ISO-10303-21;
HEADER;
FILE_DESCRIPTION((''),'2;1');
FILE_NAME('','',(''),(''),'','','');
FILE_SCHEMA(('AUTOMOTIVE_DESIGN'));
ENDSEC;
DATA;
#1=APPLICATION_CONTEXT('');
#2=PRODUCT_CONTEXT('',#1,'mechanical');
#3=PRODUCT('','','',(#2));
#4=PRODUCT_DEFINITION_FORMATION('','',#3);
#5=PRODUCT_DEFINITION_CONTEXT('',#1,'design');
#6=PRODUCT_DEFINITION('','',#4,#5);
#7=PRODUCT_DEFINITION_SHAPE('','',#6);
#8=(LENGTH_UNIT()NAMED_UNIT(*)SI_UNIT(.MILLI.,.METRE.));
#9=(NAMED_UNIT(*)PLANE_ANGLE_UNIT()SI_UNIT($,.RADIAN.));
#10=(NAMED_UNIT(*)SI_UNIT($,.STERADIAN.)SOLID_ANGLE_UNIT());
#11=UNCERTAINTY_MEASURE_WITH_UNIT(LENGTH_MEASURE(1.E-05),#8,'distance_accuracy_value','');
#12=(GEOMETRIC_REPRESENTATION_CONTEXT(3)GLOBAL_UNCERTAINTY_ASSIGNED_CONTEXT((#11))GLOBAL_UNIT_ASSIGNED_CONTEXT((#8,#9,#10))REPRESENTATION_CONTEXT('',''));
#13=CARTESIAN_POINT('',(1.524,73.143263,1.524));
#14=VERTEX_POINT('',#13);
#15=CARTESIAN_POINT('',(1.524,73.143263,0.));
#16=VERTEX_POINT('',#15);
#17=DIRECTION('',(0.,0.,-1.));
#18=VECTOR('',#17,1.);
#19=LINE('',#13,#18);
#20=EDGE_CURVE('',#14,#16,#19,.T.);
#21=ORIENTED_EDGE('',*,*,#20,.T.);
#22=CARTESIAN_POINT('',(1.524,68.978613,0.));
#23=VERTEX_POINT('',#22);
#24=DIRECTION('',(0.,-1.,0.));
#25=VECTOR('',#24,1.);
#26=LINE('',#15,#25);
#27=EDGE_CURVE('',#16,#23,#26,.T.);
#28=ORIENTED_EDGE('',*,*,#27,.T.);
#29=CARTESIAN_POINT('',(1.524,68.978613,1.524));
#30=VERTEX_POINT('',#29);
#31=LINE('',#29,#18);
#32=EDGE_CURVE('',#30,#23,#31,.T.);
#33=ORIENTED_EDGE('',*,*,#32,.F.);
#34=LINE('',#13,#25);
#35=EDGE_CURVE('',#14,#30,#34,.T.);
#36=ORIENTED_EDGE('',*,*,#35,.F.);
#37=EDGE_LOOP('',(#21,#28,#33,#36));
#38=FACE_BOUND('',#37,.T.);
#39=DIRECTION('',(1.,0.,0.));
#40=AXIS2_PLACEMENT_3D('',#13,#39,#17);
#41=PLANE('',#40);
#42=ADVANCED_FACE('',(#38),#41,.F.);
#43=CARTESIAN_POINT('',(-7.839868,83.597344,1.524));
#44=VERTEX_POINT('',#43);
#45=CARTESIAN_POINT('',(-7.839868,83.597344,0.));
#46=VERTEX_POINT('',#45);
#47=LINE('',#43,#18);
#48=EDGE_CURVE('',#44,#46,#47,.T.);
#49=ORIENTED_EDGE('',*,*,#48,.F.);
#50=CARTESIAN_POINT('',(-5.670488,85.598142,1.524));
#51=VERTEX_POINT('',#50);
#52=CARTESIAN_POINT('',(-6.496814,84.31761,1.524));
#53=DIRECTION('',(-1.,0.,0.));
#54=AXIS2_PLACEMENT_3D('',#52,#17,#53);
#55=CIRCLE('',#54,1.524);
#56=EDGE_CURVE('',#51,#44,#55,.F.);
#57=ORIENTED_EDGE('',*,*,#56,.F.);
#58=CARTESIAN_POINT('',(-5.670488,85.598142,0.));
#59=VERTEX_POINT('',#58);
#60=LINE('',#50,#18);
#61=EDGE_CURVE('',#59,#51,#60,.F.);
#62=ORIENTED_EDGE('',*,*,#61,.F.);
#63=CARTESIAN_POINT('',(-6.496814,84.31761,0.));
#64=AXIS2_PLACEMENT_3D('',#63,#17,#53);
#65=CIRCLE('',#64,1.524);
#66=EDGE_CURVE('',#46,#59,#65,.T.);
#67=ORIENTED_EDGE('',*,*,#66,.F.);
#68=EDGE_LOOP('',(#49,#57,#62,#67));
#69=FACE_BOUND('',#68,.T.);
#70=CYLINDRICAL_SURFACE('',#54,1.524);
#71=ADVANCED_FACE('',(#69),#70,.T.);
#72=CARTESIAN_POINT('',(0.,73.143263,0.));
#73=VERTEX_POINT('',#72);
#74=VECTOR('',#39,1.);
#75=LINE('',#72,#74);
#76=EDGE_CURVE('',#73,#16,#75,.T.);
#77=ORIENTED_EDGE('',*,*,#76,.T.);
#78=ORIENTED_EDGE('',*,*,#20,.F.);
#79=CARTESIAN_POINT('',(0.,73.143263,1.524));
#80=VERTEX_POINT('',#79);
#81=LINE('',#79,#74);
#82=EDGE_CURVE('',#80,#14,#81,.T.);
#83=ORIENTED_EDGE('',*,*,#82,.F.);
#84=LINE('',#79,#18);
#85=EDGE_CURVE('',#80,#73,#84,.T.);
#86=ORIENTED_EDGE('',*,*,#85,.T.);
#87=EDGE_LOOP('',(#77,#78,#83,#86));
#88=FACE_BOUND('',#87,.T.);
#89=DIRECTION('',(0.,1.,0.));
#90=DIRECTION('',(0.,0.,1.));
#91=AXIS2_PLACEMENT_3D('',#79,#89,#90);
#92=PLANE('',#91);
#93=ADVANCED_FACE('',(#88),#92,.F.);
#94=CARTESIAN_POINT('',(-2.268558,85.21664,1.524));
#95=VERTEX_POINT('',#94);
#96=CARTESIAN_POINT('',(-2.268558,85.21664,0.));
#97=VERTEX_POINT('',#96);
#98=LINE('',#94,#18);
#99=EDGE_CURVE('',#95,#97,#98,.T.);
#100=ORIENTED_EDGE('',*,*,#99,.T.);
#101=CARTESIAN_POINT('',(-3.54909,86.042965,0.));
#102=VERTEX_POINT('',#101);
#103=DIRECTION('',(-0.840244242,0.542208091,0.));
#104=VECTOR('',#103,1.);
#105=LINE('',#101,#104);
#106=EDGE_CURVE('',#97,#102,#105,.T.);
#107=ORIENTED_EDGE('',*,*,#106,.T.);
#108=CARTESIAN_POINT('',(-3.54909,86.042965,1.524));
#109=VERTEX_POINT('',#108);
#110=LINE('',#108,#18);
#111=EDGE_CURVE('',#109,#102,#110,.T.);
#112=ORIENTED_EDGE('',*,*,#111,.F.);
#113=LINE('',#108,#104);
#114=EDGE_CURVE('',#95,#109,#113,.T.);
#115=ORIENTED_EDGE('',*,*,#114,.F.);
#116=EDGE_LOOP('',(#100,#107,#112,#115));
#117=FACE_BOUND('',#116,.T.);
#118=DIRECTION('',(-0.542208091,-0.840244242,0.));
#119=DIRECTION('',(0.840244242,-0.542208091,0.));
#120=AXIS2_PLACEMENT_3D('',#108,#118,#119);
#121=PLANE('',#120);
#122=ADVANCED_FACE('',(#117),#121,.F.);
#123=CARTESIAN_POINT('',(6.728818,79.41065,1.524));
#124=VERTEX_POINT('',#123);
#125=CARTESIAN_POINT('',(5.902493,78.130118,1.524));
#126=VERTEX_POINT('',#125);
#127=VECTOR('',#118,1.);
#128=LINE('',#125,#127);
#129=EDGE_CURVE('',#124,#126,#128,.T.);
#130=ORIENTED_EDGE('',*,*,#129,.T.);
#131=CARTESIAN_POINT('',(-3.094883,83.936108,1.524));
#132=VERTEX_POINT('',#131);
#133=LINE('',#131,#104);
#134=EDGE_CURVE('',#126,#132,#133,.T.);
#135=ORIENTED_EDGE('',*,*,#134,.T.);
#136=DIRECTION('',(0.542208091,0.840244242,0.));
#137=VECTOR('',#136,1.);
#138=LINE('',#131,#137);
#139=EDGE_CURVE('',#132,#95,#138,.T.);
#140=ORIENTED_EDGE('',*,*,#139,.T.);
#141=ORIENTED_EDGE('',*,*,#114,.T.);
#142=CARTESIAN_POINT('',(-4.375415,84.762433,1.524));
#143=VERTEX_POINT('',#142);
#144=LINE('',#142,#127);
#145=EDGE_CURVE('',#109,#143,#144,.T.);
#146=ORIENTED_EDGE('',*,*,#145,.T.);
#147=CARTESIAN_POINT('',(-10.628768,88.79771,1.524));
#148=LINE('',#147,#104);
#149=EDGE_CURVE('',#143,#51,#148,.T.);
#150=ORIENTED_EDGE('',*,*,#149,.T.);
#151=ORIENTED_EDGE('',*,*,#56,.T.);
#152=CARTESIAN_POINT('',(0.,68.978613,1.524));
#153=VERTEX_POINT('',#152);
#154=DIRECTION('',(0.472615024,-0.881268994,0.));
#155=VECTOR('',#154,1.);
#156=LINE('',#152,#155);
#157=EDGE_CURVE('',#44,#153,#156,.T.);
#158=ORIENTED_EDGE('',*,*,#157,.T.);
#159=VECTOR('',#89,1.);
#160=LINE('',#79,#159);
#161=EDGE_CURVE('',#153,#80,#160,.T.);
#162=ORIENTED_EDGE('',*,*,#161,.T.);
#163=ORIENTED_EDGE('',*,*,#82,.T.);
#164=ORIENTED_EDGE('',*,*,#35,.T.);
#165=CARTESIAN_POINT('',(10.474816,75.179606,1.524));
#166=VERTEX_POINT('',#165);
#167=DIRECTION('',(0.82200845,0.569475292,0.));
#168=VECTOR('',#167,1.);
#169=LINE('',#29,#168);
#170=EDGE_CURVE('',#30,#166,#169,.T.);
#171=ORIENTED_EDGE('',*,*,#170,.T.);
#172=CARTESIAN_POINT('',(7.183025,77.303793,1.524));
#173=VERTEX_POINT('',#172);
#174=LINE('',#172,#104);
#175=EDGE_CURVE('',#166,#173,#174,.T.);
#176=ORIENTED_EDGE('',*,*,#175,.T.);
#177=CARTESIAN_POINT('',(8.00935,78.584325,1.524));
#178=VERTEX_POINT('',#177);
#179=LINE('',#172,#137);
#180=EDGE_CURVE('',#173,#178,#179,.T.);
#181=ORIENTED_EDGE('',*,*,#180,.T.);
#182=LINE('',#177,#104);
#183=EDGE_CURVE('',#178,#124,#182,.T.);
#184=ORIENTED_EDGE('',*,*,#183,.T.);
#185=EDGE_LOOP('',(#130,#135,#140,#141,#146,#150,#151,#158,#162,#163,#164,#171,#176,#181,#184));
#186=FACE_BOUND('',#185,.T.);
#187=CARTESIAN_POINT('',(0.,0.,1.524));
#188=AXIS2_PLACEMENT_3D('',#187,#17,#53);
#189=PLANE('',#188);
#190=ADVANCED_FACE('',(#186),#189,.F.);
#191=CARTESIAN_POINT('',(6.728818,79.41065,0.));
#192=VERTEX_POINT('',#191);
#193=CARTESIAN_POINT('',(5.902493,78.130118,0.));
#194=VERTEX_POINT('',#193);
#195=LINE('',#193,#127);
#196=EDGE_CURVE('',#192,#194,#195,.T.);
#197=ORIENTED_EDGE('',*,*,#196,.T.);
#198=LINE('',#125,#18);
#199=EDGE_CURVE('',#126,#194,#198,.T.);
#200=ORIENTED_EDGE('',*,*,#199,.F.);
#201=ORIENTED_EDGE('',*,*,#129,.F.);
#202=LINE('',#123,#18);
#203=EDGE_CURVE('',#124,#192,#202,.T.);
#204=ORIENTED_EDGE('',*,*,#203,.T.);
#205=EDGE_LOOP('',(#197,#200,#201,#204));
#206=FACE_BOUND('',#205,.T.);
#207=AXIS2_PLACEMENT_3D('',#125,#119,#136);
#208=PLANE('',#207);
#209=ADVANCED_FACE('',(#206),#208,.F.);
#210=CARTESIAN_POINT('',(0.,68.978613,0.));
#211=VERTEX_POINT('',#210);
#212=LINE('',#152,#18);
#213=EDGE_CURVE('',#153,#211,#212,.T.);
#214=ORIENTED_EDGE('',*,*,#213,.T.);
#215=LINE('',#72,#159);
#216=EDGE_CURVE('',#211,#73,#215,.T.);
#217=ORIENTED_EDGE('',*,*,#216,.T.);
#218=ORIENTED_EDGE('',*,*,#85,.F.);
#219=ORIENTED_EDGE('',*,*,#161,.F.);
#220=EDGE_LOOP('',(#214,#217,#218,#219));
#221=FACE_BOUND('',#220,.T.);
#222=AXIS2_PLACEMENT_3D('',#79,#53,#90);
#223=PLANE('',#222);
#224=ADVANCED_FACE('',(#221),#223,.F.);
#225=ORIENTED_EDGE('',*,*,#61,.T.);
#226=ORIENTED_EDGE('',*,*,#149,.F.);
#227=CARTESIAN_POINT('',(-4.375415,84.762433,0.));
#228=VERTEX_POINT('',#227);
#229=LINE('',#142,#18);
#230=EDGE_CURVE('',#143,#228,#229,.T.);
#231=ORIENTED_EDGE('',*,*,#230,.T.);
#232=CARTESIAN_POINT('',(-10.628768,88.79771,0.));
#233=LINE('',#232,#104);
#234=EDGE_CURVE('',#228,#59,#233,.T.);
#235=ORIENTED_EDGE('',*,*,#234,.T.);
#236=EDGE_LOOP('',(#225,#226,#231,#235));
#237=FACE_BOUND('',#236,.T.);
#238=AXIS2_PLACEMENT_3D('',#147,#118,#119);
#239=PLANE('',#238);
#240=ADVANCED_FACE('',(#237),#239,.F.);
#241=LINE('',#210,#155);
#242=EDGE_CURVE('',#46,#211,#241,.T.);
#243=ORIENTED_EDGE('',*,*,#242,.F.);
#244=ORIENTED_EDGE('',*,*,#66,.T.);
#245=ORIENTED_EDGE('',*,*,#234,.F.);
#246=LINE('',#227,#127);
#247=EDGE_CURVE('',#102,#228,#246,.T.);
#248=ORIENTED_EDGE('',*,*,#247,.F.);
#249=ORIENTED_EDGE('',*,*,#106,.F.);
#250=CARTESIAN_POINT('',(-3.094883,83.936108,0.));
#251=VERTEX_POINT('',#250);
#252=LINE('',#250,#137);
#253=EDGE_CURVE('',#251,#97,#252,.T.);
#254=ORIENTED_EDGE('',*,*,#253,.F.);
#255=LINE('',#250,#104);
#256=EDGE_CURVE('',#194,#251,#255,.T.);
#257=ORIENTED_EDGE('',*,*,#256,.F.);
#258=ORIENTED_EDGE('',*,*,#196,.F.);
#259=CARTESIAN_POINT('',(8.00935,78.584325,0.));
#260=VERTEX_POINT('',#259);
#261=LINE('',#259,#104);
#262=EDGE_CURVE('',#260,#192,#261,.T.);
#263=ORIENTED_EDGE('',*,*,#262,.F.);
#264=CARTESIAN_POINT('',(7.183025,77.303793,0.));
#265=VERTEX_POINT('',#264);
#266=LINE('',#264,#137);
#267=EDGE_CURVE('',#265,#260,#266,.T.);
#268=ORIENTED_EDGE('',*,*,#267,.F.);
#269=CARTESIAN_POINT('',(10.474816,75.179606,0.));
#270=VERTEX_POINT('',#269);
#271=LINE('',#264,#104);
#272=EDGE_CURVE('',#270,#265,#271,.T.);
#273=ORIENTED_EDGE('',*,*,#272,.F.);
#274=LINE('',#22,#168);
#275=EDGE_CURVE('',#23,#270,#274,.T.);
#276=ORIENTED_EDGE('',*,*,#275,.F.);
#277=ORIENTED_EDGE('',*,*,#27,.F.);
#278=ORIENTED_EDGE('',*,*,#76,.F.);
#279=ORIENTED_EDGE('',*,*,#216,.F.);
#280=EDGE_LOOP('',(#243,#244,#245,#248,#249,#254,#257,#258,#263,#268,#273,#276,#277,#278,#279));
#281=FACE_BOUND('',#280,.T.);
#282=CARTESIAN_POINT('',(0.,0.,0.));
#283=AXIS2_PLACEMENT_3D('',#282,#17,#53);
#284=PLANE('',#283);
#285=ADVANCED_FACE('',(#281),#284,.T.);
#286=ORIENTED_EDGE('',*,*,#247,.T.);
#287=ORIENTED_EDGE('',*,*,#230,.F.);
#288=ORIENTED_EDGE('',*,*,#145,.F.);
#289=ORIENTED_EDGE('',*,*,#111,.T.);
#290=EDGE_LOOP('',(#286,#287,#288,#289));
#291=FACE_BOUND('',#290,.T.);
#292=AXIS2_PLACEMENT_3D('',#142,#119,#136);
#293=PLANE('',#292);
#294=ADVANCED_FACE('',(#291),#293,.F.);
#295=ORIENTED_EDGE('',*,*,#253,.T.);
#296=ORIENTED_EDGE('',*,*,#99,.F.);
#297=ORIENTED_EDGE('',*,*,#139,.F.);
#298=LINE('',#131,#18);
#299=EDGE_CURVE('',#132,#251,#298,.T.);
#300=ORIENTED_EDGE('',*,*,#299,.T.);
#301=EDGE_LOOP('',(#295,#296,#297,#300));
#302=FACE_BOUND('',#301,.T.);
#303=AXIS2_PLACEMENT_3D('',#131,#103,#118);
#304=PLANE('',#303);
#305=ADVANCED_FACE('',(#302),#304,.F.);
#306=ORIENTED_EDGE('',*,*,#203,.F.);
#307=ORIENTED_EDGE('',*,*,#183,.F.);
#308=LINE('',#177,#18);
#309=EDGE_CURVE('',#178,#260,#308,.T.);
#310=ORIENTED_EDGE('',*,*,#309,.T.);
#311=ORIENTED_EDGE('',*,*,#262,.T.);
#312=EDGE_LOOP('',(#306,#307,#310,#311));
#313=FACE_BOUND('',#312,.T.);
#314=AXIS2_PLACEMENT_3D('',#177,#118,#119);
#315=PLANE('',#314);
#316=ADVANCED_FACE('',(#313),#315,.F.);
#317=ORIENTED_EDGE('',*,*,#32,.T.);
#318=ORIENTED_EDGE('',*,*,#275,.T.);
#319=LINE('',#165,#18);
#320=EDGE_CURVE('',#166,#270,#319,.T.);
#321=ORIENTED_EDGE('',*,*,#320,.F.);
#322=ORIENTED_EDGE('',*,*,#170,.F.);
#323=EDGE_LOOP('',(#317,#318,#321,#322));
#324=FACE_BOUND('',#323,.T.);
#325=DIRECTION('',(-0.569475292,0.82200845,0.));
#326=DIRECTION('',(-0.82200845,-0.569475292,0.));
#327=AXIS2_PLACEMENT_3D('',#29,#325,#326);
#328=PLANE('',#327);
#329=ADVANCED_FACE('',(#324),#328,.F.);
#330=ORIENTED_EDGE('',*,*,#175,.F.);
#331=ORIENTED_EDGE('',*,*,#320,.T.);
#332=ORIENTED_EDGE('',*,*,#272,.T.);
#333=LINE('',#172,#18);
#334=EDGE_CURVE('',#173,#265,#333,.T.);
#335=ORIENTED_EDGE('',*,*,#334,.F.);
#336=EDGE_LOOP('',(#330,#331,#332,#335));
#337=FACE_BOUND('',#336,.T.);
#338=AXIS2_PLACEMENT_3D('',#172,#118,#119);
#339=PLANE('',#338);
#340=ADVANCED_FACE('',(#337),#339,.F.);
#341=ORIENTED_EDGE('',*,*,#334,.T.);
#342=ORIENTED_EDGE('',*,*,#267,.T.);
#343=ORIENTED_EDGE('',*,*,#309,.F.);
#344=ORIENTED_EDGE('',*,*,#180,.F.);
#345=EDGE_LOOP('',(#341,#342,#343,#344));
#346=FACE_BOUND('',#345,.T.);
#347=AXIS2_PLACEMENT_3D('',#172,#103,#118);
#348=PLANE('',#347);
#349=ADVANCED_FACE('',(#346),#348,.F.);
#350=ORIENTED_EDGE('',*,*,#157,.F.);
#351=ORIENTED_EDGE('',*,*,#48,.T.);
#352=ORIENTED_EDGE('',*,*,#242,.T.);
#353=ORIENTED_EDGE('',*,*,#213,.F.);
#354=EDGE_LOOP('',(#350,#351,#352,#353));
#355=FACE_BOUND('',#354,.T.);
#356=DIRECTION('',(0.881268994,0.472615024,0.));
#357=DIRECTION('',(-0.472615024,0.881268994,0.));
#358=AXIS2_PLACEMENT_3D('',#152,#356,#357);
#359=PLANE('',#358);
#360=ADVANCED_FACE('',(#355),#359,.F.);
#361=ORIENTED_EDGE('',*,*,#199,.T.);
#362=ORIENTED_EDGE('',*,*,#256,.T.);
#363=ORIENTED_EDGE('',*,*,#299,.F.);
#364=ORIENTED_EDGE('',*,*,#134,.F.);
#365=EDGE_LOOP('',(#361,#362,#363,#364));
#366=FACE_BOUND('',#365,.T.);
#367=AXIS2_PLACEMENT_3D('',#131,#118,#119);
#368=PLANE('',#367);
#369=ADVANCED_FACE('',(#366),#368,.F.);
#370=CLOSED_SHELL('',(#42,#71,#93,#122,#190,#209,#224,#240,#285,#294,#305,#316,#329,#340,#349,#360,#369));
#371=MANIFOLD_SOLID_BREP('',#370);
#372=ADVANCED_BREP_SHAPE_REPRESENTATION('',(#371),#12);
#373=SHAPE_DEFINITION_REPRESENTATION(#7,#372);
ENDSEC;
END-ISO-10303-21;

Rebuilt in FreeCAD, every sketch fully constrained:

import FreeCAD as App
import Part
import Sketcher

V = App.Vector
Q = App.Units.Quantity


def edges_at(feature, points):
    """Names of the edges that pass closest to the given points."""
    edges = feature.Shape.Edges
    near = lambda p: min(range(len(edges)), key=lambda i: edges[i].distToShape(Part.Vertex(*p))[0])
    return sorted({f"Edge{near(p) + 1}" for p in points})

doc = App.newDocument("Part")
body = doc.addObject("PartDesign::Body", "Body")

# Sketch on XY plane
sketch1 = doc.addObject("Sketcher::SketchObject", "Sketch")
body.addObject(sketch1)
sketch1.AttachmentSupport = (doc.XY_Plane, [""])
sketch1.MapMode = "FlatFace"
sketch1.addGeometry([
    Part.LineSegment(V(0, 73.1, 0), V(1.5, 73.1, 0)),  # 0
    Part.LineSegment(V(1.5, 73.1, 0), V(1.5, 69, 0)),  # 1
    Part.LineSegment(V(1.5, 69, 0), V(10.5, 75.2, 0)),  # 2
    Part.LineSegment(V(10.5, 75.2, 0), V(7.2, 77.3, 0)),  # 3
    Part.LineSegment(V(7.2, 77.3, 0), V(8, 78.6, 0)),  # 4
    Part.LineSegment(V(8, 78.6, 0), V(6.7, 79.4, 0)),  # 5
    Part.LineSegment(V(6.7, 79.4, 0), V(5.9, 78.1, 0)),  # 6
    Part.LineSegment(V(5.9, 78.1, 0), V(-3.1, 83.9, 0)),  # 7
    Part.LineSegment(V(-3.1, 83.9, 0), V(-2.3, 85.2, 0)),  # 8
    Part.LineSegment(V(-2.3, 85.2, 0), V(-3.5, 86, 0)),  # 9
    Part.LineSegment(V(-3.5, 86, 0), V(-4.4, 84.8, 0)),  # 10
    Part.LineSegment(V(-4.4, 84.8, 0), V(-10.6, 88.8, 0)),  # 11
    Part.LineSegment(V(-10.6, 88.8, 0), V(0, 69, 0)),  # 12
    Part.LineSegment(V(0, 69, 0), V(0, 73.1, 0)),  # 13
], False)
sketch1.addConstraint([
    Sketcher.Constraint("Coincident", 0, 2, 1, 1),
    Sketcher.Constraint("Coincident", 1, 2, 2, 1),
    Sketcher.Constraint("Coincident", 2, 2, 3, 1),
    Sketcher.Constraint("Coincident", 3, 2, 4, 1),
    Sketcher.Constraint("Coincident", 4, 2, 5, 1),
    Sketcher.Constraint("Coincident", 5, 2, 6, 1),
    Sketcher.Constraint("Coincident", 6, 2, 7, 1),
    Sketcher.Constraint("Coincident", 7, 2, 8, 1),
    Sketcher.Constraint("Coincident", 8, 2, 9, 1),
    Sketcher.Constraint("Coincident", 9, 2, 10, 1),
    Sketcher.Constraint("Coincident", 10, 2, 11, 1),
    Sketcher.Constraint("Coincident", 11, 2, 12, 1),
    Sketcher.Constraint("Coincident", 12, 2, 13, 1),
    Sketcher.Constraint("Coincident", 13, 2, 0, 1),
    Sketcher.Constraint("Horizontal", 0),
    Sketcher.Constraint("Vertical", 1),
    Sketcher.Constraint("Vertical", 13),
    Sketcher.Constraint("PointOnObject", 12, 2, -2),
    Sketcher.Constraint("Perpendicular", 3, 4),
    Sketcher.Constraint("Perpendicular", 4, 5),
    Sketcher.Constraint("Perpendicular", 5, 6),
    Sketcher.Constraint("Perpendicular", 6, 7),
    Sketcher.Constraint("Perpendicular", 7, 8),
    Sketcher.Constraint("Perpendicular", 8, 9),
    Sketcher.Constraint("Perpendicular", 9, 10),
    Sketcher.Constraint("Perpendicular", 10, 11),
    Sketcher.Constraint("Horizontal", 1, 2, 12, 2),
    Sketcher.Constraint("Equal", 4, 5),
    Sketcher.Constraint("Equal", 5, 6),
    Sketcher.Constraint("Equal", 6, 8),
    Sketcher.Constraint("Equal", 8, 9),
    Sketcher.Constraint("Equal", 9, 10),
    Sketcher.Constraint("DistanceX", 0, 1, 0, 2, Q("0.06 in")),
    Sketcher.Constraint("Distance", 4, Q("0.06 in")),
    Sketcher.Constraint("DistanceY", 4, 2, 7, 2, Q("0.2107001 in")),
    Sketcher.Constraint("DistanceY", 1, 2, 1, 1, 4.16465),
    Sketcher.Constraint("DistanceX", 5, 2, 2, 2, 3.745998),
    Sketcher.Constraint("DistanceX", 7, 2, 5, 2, 9.823701),
    Sketcher.Constraint("Distance", 2, 10.888959),
    Sketcher.Constraint("Distance", 12, 22.489272),
    Sketcher.Constraint("DistanceX", -1, 1, 4, 2, 8.00935),
    Sketcher.Constraint("DistanceY", -1, 1, 5, 2, 79.41065),
])
pad1 = doc.addObject("PartDesign::Pad", "Pad")
body.addObject(pad1)
pad1.Profile = sketch1
pad1.Length = Q("0.06 in")
doc.recompute()

fillet = doc.addObject("PartDesign::Fillet", "Fillet")
body.addObject(fillet)
fillet.Base = (pad1, edges_at(pad1, [(-10.629, 88.798, 0.762)]))
fillet.Radius = Q("0.06 in")

doc.recompute()
